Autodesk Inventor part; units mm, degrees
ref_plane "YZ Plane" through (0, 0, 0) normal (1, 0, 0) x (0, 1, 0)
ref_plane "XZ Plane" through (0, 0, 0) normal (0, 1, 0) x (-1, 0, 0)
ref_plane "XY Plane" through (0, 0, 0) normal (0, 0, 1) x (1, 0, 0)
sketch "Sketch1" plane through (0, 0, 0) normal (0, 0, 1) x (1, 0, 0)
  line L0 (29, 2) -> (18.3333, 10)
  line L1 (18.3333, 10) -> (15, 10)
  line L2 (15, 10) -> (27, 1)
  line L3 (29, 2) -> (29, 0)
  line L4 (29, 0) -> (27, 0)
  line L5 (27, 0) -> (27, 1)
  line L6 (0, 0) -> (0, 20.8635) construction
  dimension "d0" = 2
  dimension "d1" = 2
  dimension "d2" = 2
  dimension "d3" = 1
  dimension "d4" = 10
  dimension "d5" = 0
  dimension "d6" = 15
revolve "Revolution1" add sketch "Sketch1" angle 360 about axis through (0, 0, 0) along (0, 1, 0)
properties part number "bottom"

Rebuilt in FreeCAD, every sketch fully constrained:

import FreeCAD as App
import Part
import Sketcher

V = App.Vector
Q = App.Units.Quantity

doc = App.newDocument("Part")
body = doc.addObject("PartDesign::Body", "Body")

# Sketch on XY plane
sketch1 = body.newObject("Sketcher::SketchObject", "Sketch")
sketch1.AttachmentSupport = (doc.getObject("XY_Plane"), [""])
sketch1.MapMode = "FlatFace"
sketch1.addGeometry([
    Part.LineSegment(V(29, 0, 0), V(29, 2, 0)),  # 0
    Part.LineSegment(V(29, 2, 0), V(18.3333, 10, 0)),  # 1
    Part.LineSegment(V(18.3333, 10, 0), V(15, 10, 0)),  # 2
    Part.LineSegment(V(15, 10, 0), V(27, 1, 0)),  # 3
    Part.LineSegment(V(27, 1, 0), V(27, 0, 0)),  # 4
    Part.LineSegment(V(27, 0, 0), V(29, 0, 0)),  # 5
], False)
sketch1.addConstraint([
    Sketcher.Constraint("Coincident", 0, 2, 1, 1),
    Sketcher.Constraint("Coincident", 1, 2, 2, 1),
    Sketcher.Constraint("Coincident", 2, 2, 3, 1),
    Sketcher.Constraint("Coincident", 3, 2, 4, 1),
    Sketcher.Constraint("Coincident", 4, 2, 5, 1),
    Sketcher.Constraint("Coincident", 5, 2, 0, 1),
    Sketcher.Constraint("Vertical", 0),
    Sketcher.Constraint("Horizontal", 2),
    Sketcher.Constraint("Vertical", 4),
    Sketcher.Constraint("Horizontal", 5),
    Sketcher.Constraint("PointOnObject", 4, 2, -1),
    Sketcher.Constraint("Parallel", 1, 3),
    Sketcher.Constraint("Equal", 5, 0),
    Sketcher.Constraint("DistanceX", 5, 1, 5, 2, Q("2 mm")),
    Sketcher.Constraint("DistanceY", 4, 2, 4, 1, Q("1 mm")),
    Sketcher.Constraint("Distance", 3, Q("15 mm")),
    Sketcher.Constraint("DistanceY", -1, 1, 1, 2, Q("10 mm")),
    Sketcher.Constraint("DistanceX", -1, 1, 2, 2, Q("15 mm")),
])
revolution = body.newObject("PartDesign::Revolution", "Revolution")
revolution.Profile = sketch1
revolution.ReferenceAxis = (sketch1, ["V_Axis"])
revolution.Angle = 360

doc.recompute()
